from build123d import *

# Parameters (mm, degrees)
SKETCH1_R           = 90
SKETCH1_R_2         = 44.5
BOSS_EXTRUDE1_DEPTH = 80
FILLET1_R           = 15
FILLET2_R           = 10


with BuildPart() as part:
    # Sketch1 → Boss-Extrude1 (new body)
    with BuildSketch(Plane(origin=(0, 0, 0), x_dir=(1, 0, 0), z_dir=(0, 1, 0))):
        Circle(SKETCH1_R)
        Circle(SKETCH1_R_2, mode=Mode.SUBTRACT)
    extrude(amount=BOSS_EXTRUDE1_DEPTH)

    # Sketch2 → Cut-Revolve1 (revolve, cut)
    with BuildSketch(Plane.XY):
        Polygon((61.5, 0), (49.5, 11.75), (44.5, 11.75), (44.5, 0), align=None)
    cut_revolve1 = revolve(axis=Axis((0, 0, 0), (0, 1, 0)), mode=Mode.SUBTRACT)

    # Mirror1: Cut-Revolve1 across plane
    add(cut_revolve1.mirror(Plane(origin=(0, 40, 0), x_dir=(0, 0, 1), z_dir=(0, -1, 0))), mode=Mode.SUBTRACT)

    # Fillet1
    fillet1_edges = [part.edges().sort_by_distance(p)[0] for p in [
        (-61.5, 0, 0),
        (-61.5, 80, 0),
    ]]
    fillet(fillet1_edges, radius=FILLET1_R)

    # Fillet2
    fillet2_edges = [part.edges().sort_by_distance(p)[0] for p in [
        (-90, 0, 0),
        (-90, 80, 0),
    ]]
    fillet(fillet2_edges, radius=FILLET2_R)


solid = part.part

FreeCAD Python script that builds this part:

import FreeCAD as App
import Part
import Sketcher
Q = App.Units.Quantity


def edges_at(feature, points):
    """Names of the edges that pass closest to the given points."""
    edges = feature.Shape.Edges
    near = lambda p: min(range(len(edges)), key=lambda i: edges[i].distToShape(Part.Vertex(*p))[0])
    return sorted({f"Edge{near(p) + 1}" for p in points})

doc = App.newDocument("Part")
body = doc.addObject("PartDesign::Body", "Body")

# Sketch on XZ plane
sketch1 = doc.addObject("Sketcher::SketchObject", "Sketch")
body.addObject(sketch1)
sketch1.AttachmentSupport = (doc.XZ_Plane, [""])
sketch1.MapMode = "FlatFace"
sketch1.addGeometry([
    Part.Circle(App.Vector(0, 0, 0), App.Vector(0, 0, 1), 90),
    Part.Circle(App.Vector(0, 0, 0), App.Vector(0, 0, 1), 44),
], False)
sketch1.addConstraint([
    Sketcher.Constraint("Coincident", 0, 3, -1, 1),
    Sketcher.Constraint("Coincident", 1, 3, -1, 1),
    Sketcher.Constraint("Diameter", 0, Q("180 mm")),
    Sketcher.Constraint("Diameter", 1, Q("89 mm")),
])
pad1 = doc.addObject("PartDesign::Pad", "Pad")
body.addObject(pad1)
pad1.Profile = sketch1
pad1.Length = 80
pad1.Reversed = True

# Sketch on XY plane
sketch2 = doc.addObject("Sketcher::SketchObject", "Sketch001")
body.addObject(sketch2)
sketch2.AttachmentSupport = (doc.XY_Plane, [""])
sketch2.MapMode = "FlatFace"
sketch2.addGeometry([
    Part.LineSegment(App.Vector(62, 0, 0), App.Vector(50, 12, 0)),
    Part.LineSegment(App.Vector(50, 12, 0), App.Vector(44, 12, 0)),
    Part.LineSegment(App.Vector(44, 12, 0), App.Vector(44, 0, 0)),
    Part.LineSegment(App.Vector(44, 0, 0), App.Vector(62, 0, 0)),
], False)
sketch2.addConstraint([
    Sketcher.Constraint("Coincident", 0, 2, 1, 1),
    Sketcher.Constraint("Coincident", 1, 2, 2, 1),
    Sketcher.Constraint("Coincident", 2, 2, 3, 1),
    Sketcher.Constraint("Coincident", 3, 2, 0, 1),
    Sketcher.Constraint("Horizontal", 1),
    Sketcher.Constraint("Vertical", 2),
    Sketcher.Constraint("Horizontal", 3),
    Sketcher.Constraint("PointOnObject", 2, 2, -1),
    Sketcher.Constraint("DistanceX", 1, 2, 1, 1, Q("5 mm")),
    Sketcher.Constraint("DistanceX", 3, 1, 3, 2, Q("17 mm")),
    Sketcher.Constraint("DistanceY", 2, 2, 2, 1, Q("11.75 mm")),
    Sketcher.Constraint("DistanceX", -1, 1, 0, 2, Q("49.5 mm")),
])
groove = doc.addObject("PartDesign::Groove", "Groove")
body.addObject(groove)
groove.Profile = sketch2
groove.ReferenceAxis = (sketch2, ["V_Axis"])
groove.Angle = 360
doc.recompute()

datumplane = doc.addObject("PartDesign::Plane", "DatumPlane")
body.addObject(datumplane)
datumplane.AttachmentSupport = (doc.XZ_Plane, [""])
datumplane.MapMode = "FlatFace"
datumplane.AttachmentOffset = App.Placement(App.Vector(0, 0, -40), App.Rotation())
mirrored = doc.addObject("PartDesign::Mirrored", "Mirrored")
body.addObject(mirrored)
mirrored.Originals = [groove]
mirrored.MirrorPlane = (datumplane, [""])
body.Tip = mirrored
doc.recompute()

fillet = doc.addObject("PartDesign::Fillet", "Fillet")
body.addObject(fillet)
fillet.Base = (mirrored, edges_at(mirrored, [(-61.5, 0, 0), (-61.5, 80, 0)]))
fillet.Radius = 15
doc.recompute()

fillet2 = doc.addObject("PartDesign::Fillet", "Fillet001")
body.addObject(fillet2)
fillet2.Base = (fillet, edges_at(fillet, [(-90, 0, 0), (-90, 80, 0)]))
fillet2.Radius = 10

doc.recompute()
